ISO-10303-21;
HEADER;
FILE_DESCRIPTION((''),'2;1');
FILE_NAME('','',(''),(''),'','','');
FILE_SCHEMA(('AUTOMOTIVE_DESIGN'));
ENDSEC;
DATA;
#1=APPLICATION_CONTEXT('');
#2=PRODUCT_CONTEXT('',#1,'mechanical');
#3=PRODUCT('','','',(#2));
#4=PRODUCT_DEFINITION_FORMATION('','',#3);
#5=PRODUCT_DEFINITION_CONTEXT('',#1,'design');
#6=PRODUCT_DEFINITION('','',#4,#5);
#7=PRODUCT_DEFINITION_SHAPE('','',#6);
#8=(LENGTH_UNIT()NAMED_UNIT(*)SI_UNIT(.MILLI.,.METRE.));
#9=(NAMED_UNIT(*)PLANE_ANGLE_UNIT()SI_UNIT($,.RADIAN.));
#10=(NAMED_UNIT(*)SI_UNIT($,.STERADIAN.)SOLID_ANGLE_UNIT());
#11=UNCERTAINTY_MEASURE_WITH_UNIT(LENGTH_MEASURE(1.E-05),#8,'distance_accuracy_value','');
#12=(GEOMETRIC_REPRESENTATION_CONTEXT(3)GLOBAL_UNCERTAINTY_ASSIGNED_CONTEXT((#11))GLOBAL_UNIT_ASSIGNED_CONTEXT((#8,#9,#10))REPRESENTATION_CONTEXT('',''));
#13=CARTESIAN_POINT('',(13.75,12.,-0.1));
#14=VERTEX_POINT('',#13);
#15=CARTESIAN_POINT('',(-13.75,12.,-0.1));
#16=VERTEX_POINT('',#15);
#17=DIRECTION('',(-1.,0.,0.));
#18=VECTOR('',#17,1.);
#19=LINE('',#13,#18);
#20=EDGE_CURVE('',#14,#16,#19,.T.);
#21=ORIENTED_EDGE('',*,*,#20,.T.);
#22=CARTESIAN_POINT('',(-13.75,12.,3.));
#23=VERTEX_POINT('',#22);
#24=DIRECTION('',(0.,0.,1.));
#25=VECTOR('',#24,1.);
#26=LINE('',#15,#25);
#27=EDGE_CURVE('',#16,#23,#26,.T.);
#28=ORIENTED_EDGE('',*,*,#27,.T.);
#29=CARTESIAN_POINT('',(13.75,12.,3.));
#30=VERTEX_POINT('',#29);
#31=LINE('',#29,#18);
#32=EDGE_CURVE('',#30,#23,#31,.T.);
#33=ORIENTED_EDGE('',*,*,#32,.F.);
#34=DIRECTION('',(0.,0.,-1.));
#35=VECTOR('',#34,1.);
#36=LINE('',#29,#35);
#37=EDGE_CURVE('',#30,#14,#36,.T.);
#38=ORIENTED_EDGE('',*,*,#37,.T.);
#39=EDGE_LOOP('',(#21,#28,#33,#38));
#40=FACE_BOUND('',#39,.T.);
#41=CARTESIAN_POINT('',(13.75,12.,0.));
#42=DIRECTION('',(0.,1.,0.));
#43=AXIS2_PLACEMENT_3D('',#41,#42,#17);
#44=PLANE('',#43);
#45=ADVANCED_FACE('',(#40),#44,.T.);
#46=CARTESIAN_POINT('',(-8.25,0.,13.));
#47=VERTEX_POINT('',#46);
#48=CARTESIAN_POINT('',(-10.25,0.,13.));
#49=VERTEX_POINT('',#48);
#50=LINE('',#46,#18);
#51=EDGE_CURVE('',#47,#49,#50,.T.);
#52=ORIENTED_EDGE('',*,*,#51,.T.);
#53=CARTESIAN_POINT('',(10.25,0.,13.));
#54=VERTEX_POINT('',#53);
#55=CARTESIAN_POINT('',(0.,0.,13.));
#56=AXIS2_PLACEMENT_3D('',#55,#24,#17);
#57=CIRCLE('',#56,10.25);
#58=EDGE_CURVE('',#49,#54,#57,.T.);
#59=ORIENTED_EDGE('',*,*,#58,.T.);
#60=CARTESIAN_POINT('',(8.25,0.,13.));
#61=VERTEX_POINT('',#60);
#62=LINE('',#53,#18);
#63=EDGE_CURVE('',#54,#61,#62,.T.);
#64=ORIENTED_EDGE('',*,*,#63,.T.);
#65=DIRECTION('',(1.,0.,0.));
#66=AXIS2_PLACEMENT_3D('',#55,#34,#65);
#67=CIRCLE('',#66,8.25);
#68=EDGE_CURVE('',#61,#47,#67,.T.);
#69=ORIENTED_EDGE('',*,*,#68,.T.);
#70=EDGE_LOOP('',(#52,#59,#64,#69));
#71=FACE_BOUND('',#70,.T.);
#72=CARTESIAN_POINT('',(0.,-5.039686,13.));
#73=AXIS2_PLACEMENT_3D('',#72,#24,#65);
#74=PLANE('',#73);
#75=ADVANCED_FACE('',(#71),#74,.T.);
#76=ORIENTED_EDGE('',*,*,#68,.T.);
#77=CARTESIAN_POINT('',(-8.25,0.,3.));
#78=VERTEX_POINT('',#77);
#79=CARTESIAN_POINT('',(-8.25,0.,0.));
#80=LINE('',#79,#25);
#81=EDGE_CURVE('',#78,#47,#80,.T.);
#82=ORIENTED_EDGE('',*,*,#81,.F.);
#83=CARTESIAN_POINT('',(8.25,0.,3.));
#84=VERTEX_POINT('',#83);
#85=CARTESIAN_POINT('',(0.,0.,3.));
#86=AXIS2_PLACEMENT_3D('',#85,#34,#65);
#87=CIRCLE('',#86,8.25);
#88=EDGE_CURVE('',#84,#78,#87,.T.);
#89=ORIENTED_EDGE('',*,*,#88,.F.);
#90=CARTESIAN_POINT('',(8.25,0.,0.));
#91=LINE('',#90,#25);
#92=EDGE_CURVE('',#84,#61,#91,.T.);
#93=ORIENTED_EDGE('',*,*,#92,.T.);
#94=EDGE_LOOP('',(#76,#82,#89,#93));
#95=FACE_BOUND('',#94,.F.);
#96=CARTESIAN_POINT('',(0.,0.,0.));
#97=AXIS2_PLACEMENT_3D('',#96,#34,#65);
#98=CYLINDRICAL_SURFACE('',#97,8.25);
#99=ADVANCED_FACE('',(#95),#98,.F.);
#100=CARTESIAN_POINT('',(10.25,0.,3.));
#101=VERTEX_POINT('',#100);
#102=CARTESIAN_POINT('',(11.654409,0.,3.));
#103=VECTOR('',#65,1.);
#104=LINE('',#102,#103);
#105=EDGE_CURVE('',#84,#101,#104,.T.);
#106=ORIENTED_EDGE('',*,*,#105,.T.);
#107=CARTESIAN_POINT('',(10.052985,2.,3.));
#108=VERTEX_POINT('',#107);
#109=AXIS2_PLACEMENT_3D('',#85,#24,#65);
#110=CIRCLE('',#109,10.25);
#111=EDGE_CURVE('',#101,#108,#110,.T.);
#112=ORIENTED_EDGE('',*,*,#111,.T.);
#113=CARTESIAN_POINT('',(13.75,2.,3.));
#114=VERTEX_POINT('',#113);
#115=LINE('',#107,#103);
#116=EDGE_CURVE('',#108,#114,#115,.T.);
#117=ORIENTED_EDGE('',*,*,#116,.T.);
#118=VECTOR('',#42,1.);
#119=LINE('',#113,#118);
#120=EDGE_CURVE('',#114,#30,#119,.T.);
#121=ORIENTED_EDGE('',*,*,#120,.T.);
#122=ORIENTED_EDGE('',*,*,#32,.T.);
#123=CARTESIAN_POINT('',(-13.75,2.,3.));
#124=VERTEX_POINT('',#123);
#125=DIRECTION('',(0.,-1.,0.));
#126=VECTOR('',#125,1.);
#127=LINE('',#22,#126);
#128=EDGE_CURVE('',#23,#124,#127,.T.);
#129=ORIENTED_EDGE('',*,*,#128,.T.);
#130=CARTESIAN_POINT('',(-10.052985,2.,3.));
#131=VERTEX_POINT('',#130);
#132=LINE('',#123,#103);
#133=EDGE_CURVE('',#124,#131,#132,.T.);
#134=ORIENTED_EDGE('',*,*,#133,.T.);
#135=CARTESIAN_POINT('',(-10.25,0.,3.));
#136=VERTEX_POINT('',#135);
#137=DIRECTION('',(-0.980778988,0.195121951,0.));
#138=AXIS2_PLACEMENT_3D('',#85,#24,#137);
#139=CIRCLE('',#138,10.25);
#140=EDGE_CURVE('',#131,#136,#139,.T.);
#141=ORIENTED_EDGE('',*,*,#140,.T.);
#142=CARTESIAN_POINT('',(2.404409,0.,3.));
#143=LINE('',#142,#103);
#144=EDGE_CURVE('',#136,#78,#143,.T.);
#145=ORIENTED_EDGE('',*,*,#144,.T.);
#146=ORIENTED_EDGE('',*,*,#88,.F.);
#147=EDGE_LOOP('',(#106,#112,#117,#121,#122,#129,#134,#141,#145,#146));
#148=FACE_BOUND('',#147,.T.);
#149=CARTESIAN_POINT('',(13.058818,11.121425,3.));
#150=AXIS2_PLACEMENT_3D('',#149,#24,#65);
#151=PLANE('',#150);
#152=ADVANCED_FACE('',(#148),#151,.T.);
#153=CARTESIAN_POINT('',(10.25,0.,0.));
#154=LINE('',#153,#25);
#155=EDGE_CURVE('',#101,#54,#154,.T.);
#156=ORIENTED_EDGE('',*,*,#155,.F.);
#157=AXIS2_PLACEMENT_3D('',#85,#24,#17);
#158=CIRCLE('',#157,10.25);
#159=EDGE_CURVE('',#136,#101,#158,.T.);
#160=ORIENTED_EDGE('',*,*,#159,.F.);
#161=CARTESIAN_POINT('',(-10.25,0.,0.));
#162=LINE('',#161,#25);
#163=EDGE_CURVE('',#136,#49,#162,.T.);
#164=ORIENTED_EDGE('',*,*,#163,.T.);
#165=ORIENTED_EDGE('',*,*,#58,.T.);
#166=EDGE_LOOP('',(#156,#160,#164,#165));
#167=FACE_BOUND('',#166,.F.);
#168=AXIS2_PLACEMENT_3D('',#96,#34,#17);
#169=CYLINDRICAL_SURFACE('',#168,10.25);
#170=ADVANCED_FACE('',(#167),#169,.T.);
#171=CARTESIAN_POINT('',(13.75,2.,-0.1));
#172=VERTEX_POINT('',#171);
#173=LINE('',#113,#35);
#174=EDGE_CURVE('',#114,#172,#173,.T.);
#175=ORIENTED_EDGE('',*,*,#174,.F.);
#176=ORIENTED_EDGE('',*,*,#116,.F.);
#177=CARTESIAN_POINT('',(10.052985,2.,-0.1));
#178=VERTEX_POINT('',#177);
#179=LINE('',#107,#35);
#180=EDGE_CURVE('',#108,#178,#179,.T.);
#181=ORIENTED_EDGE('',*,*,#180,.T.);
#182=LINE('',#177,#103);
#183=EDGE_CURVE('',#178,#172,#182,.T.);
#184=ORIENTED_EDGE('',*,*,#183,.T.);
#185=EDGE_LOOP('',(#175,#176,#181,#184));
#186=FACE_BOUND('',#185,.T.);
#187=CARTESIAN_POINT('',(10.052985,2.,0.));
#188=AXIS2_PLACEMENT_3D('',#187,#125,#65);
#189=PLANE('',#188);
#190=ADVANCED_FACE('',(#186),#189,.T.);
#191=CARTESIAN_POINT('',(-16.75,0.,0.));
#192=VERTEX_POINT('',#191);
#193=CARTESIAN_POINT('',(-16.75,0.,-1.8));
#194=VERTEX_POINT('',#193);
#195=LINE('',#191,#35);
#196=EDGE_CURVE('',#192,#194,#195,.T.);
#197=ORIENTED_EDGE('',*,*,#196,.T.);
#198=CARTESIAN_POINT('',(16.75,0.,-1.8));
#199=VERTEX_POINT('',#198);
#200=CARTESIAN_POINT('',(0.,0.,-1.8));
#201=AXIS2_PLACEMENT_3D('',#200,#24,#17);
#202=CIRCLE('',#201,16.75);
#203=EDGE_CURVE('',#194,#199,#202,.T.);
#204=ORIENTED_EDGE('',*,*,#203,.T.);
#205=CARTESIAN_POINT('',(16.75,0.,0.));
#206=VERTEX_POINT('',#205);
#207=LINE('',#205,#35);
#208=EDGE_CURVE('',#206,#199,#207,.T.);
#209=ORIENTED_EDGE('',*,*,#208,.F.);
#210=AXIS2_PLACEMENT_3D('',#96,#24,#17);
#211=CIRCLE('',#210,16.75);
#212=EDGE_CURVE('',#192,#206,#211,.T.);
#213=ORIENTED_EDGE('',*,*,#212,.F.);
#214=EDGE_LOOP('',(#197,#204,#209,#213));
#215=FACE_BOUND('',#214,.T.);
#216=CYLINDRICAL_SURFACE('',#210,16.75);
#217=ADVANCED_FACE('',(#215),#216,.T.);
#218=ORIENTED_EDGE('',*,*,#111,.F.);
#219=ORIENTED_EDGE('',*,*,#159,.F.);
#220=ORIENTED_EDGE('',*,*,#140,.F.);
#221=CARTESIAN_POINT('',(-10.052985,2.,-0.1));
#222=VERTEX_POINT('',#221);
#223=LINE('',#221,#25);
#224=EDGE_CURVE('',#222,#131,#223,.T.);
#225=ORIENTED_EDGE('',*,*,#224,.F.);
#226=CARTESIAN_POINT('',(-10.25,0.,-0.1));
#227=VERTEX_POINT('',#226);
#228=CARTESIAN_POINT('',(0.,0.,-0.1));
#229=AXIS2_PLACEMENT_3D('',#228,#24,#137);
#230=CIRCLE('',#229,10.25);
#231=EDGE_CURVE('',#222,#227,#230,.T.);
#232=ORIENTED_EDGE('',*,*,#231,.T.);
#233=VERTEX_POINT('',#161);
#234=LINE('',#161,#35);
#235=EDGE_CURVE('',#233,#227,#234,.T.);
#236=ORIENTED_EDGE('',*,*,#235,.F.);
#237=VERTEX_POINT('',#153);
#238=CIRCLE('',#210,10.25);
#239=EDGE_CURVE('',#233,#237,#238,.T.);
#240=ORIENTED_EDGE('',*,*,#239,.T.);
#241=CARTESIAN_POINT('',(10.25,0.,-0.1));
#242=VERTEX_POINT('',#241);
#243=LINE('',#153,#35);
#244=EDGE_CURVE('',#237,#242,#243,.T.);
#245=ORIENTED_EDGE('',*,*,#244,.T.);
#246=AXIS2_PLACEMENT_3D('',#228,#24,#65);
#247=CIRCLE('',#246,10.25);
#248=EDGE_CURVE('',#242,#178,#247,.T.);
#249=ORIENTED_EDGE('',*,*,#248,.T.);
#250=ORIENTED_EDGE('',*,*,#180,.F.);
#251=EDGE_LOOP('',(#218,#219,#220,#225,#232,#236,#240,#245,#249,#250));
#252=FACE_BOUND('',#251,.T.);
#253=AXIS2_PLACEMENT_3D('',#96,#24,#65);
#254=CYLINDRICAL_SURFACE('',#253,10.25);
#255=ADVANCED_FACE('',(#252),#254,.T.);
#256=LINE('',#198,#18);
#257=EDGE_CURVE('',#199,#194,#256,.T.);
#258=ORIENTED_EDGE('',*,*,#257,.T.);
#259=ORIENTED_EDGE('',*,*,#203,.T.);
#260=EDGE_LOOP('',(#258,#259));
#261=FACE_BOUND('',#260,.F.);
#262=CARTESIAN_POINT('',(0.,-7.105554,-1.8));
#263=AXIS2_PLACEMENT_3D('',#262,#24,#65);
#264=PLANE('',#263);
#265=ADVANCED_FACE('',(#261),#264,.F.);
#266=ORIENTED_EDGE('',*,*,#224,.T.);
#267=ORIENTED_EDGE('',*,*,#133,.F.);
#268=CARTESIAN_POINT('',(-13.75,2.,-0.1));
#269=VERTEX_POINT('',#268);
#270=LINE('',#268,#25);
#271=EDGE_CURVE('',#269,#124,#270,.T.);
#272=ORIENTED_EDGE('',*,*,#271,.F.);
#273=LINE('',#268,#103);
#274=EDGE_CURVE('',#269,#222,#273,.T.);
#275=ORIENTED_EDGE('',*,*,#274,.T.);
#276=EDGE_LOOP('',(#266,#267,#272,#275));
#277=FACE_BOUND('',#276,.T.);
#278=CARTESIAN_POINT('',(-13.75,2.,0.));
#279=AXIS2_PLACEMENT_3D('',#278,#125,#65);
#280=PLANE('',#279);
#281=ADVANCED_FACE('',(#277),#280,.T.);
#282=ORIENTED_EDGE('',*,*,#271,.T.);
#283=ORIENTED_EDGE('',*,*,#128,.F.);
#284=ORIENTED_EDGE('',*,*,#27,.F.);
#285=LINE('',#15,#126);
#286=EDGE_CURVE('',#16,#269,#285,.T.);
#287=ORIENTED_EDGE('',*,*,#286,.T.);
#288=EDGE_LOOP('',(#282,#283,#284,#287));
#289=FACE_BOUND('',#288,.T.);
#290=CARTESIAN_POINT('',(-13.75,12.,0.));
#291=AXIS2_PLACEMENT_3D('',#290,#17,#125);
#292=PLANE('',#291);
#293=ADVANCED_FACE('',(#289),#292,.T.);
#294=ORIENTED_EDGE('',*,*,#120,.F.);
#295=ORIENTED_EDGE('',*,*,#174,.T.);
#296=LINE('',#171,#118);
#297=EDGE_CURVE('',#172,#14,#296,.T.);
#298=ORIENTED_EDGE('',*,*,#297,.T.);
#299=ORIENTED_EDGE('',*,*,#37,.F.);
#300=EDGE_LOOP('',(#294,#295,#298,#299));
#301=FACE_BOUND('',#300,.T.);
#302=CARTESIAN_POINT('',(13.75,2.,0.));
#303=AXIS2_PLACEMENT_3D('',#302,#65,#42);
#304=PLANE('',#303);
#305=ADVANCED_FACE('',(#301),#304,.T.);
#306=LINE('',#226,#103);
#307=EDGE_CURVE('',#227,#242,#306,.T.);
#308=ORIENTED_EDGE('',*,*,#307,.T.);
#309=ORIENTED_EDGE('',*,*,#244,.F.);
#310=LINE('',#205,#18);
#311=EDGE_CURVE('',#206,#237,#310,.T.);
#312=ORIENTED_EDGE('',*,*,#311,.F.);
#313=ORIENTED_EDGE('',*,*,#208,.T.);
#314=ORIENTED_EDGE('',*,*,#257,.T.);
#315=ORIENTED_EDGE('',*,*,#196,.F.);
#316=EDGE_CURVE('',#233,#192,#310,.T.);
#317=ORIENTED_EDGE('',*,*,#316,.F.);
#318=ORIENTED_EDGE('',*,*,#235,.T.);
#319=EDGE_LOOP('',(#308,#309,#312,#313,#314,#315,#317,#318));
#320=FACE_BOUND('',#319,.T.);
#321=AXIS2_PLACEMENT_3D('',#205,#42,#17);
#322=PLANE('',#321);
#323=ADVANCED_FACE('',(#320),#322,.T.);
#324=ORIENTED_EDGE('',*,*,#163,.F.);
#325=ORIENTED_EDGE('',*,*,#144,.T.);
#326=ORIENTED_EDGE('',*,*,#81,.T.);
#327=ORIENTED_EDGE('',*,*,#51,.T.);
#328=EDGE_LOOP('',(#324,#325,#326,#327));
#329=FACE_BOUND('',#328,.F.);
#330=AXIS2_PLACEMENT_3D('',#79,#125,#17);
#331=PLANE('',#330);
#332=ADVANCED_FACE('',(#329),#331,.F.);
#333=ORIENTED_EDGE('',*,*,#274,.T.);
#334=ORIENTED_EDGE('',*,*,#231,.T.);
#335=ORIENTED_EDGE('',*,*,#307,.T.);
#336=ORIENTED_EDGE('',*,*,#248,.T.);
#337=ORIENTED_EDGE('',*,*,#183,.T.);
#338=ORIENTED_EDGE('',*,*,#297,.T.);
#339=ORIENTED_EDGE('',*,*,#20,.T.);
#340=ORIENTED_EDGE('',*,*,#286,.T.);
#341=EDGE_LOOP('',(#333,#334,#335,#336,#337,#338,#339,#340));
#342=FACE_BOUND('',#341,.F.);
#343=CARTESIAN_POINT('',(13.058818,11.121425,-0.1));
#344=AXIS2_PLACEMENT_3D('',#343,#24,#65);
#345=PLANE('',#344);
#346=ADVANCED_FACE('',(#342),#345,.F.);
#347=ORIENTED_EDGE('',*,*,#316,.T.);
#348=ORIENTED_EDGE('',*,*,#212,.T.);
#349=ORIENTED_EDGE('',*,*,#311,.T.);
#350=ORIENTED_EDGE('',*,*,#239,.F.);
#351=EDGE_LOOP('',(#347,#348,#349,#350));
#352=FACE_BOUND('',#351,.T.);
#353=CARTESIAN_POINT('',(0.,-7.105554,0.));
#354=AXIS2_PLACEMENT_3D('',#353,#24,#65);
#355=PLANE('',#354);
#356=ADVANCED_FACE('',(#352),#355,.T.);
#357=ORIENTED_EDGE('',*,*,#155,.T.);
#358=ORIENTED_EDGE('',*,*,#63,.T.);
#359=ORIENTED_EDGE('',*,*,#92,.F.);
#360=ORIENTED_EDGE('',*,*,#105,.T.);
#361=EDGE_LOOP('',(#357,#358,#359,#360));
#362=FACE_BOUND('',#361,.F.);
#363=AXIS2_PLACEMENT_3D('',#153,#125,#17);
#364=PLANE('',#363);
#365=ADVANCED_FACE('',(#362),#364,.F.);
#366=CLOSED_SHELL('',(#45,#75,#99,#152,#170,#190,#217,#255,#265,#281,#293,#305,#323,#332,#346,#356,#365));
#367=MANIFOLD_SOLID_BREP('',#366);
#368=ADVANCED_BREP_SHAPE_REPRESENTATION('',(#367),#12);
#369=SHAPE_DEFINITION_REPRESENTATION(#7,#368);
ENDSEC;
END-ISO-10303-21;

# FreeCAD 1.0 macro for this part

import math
import FreeCAD as App
import Part
import Sketcher

V = App.Vector

doc = App.newDocument("Part")
body = doc.addObject("PartDesign::Body", "Body")

sketch1 = doc.addObject("Sketcher::SketchObject", "Sketch")
body.addObject(sketch1)
sketch1.AttachmentSupport = (doc.XY_Plane, [""])
sketch1.MapMode = "FlatFace"
sketch1.addGeometry([
    Part.ArcOfCircle(Part.Circle(V(0, 0, 0), V(0, 0, 1), 16.75), math.radians(180), math.radians(360)),
    Part.LineSegment(V(16.75, 0, 0), V(-16.75, 0, 0)),
], False)
sketch1.addConstraint([
    Sketcher.Constraint("Coincident", 0, 1, 1, 2),
    Sketcher.Constraint("Coincident", 1, 1, 0, 2),
    Sketcher.Constraint("Horizontal", 1),
    Sketcher.Constraint("Coincident", 0, 3, -1, 1),
    Sketcher.Constraint("PointOnObject", 0, 1, -1),
    Sketcher.Constraint("Radius", 0, 16.75),
])
pad1 = doc.addObject("PartDesign::Pad", "Pad")
body.addObject(pad1)
pad1.Profile = sketch1
pad1.Length = 1.8
pad1.Reversed = True

sketch2 = doc.addObject("Sketcher::SketchObject", "Sketch001")
body.addObject(sketch2)
sketch2.AttachmentSupport = (doc.XY_Plane, [""])
sketch2.MapMode = "FlatFace"
sketch2.addGeometry([
    Part.LineSegment(V(13.75, 12, 0), V(-13.75, 12, 0)),
    Part.LineSegment(V(-13.75, 12, 0), V(-13.75, 2, 0)),
    Part.LineSegment(V(-13.75, 2, 0), V(-10.052985, 2, 0)),
    Part.ArcOfCircle(Part.Circle(V(0, 0, 0), V(0, 0, 1), 10.25), math.radians(168.748152), math.radians(180)),
    Part.ArcOfCircle(Part.Circle(V(0, 0, 0), V(0, 0, 1), 10.25), math.radians(180), math.radians(360)),
    Part.ArcOfCircle(Part.Circle(V(0, 0, 0), V(0, 0, 1), 10.25), math.radians(0), math.radians(11.251848)),
    Part.LineSegment(V(10.052985, 2, 0), V(13.75, 2, 0)),
    Part.LineSegment(V(13.75, 2, 0), V(13.75, 12, 0)),
], False)
sketch2.addConstraint([
    Sketcher.Constraint("Coincident", 0, 2, 1, 1),
    Sketcher.Constraint("Coincident", 1, 2, 2, 1),
    Sketcher.Constraint("Coincident", 2, 2, 3, 1),
    Sketcher.Constraint("Tangent", 3, 2, 4, 1),
    Sketcher.Constraint("Tangent", 4, 2, 5, 1),
    Sketcher.Constraint("Coincident", 5, 2, 6, 1),
    Sketcher.Constraint("Coincident", 6, 2, 7, 1),
    Sketcher.Constraint("Coincident", 7, 2, 0, 1),
    Sketcher.Constraint("Horizontal", 0),
    Sketcher.Constraint("Vertical", 1),
    Sketcher.Constraint("Horizontal", 2),
    Sketcher.Constraint("Horizontal", 6),
    Sketcher.Constraint("Vertical", 7),
    Sketcher.Constraint("Coincident", 3, 3, -1, 1),
    Sketcher.Constraint("Equal", 3, 4),
    Sketcher.Constraint("Equal", 4, 5),
    Sketcher.Constraint("Symmetric", 1, 2, 6, 2, -2),
    Sketcher.Constraint("PointOnObject", 3, 2, -1),
    Sketcher.Constraint("PointOnObject", 4, 2, -1),
    Sketcher.Constraint("DistanceY", 1, 2, 1, 1, 10.0),
    Sketcher.Constraint("Radius", 3, 10.25),
    Sketcher.Constraint("DistanceX", 0, 2, 0, 1, 27.5),
    Sketcher.Constraint("DistanceY", -1, 1, 0, 2, 12.0),
])
pad2 = doc.addObject("PartDesign::Pad", "Pad001")
body.addObject(pad2)
pad2.Profile = sketch2
pad2.Type = "TwoLengths"
pad2.Length = 3
pad2.Length2 = 0.1

sketch3 = doc.addObject("Sketcher::SketchObject", "Sketch002")
body.addObject(sketch3)
sketch3.AttachmentSupport = (doc.XY_Plane, [""])
sketch3.MapMode = "FlatFace"
sketch3.addGeometry([
    Part.LineSegment(V(-8.25, 0, 0), V(-10.25, 0, 0)),
    Part.ArcOfCircle(Part.Circle(V(0, 0, 0), V(0, 0, 1), 10.25), math.radians(180), math.radians(360)),
    Part.LineSegment(V(10.25, 0, 0), V(8.25, 0, 0)),
    Part.ArcOfCircle(Part.Circle(V(0, 0, 0), V(0, 0, 1), 8.25), math.radians(180), math.radians(360)),
], False)
sketch3.addConstraint([
    Sketcher.Constraint("Coincident", 0, 2, 1, 1),
    Sketcher.Constraint("Coincident", 1, 2, 2, 1),
    Sketcher.Constraint("Coincident", 2, 2, 3, 2),
    Sketcher.Constraint("Coincident", 3, 1, 0, 1),
    Sketcher.Constraint("Horizontal", 0),
    Sketcher.Constraint("Horizontal", 2),
    Sketcher.Constraint("Coincident", 1, 3, -1, 1),
    Sketcher.Constraint("Coincident", 3, 3, -1, 1),
    Sketcher.Constraint("PointOnObject", 0, 2, -1),
    Sketcher.Constraint("PointOnObject", 1, 2, -1),
    Sketcher.Constraint("DistanceX", 0, 2, 0, 1, 2.0),
    Sketcher.Constraint("Radius", 1, 10.25),
])
pad3 = doc.addObject("PartDesign::Pad", "Pad002")
body.addObject(pad3)
pad3.Profile = sketch3
pad3.Type = "TwoLengths"
pad3.Length = 13
pad3.Length2 = 1.7

doc.recompute()
